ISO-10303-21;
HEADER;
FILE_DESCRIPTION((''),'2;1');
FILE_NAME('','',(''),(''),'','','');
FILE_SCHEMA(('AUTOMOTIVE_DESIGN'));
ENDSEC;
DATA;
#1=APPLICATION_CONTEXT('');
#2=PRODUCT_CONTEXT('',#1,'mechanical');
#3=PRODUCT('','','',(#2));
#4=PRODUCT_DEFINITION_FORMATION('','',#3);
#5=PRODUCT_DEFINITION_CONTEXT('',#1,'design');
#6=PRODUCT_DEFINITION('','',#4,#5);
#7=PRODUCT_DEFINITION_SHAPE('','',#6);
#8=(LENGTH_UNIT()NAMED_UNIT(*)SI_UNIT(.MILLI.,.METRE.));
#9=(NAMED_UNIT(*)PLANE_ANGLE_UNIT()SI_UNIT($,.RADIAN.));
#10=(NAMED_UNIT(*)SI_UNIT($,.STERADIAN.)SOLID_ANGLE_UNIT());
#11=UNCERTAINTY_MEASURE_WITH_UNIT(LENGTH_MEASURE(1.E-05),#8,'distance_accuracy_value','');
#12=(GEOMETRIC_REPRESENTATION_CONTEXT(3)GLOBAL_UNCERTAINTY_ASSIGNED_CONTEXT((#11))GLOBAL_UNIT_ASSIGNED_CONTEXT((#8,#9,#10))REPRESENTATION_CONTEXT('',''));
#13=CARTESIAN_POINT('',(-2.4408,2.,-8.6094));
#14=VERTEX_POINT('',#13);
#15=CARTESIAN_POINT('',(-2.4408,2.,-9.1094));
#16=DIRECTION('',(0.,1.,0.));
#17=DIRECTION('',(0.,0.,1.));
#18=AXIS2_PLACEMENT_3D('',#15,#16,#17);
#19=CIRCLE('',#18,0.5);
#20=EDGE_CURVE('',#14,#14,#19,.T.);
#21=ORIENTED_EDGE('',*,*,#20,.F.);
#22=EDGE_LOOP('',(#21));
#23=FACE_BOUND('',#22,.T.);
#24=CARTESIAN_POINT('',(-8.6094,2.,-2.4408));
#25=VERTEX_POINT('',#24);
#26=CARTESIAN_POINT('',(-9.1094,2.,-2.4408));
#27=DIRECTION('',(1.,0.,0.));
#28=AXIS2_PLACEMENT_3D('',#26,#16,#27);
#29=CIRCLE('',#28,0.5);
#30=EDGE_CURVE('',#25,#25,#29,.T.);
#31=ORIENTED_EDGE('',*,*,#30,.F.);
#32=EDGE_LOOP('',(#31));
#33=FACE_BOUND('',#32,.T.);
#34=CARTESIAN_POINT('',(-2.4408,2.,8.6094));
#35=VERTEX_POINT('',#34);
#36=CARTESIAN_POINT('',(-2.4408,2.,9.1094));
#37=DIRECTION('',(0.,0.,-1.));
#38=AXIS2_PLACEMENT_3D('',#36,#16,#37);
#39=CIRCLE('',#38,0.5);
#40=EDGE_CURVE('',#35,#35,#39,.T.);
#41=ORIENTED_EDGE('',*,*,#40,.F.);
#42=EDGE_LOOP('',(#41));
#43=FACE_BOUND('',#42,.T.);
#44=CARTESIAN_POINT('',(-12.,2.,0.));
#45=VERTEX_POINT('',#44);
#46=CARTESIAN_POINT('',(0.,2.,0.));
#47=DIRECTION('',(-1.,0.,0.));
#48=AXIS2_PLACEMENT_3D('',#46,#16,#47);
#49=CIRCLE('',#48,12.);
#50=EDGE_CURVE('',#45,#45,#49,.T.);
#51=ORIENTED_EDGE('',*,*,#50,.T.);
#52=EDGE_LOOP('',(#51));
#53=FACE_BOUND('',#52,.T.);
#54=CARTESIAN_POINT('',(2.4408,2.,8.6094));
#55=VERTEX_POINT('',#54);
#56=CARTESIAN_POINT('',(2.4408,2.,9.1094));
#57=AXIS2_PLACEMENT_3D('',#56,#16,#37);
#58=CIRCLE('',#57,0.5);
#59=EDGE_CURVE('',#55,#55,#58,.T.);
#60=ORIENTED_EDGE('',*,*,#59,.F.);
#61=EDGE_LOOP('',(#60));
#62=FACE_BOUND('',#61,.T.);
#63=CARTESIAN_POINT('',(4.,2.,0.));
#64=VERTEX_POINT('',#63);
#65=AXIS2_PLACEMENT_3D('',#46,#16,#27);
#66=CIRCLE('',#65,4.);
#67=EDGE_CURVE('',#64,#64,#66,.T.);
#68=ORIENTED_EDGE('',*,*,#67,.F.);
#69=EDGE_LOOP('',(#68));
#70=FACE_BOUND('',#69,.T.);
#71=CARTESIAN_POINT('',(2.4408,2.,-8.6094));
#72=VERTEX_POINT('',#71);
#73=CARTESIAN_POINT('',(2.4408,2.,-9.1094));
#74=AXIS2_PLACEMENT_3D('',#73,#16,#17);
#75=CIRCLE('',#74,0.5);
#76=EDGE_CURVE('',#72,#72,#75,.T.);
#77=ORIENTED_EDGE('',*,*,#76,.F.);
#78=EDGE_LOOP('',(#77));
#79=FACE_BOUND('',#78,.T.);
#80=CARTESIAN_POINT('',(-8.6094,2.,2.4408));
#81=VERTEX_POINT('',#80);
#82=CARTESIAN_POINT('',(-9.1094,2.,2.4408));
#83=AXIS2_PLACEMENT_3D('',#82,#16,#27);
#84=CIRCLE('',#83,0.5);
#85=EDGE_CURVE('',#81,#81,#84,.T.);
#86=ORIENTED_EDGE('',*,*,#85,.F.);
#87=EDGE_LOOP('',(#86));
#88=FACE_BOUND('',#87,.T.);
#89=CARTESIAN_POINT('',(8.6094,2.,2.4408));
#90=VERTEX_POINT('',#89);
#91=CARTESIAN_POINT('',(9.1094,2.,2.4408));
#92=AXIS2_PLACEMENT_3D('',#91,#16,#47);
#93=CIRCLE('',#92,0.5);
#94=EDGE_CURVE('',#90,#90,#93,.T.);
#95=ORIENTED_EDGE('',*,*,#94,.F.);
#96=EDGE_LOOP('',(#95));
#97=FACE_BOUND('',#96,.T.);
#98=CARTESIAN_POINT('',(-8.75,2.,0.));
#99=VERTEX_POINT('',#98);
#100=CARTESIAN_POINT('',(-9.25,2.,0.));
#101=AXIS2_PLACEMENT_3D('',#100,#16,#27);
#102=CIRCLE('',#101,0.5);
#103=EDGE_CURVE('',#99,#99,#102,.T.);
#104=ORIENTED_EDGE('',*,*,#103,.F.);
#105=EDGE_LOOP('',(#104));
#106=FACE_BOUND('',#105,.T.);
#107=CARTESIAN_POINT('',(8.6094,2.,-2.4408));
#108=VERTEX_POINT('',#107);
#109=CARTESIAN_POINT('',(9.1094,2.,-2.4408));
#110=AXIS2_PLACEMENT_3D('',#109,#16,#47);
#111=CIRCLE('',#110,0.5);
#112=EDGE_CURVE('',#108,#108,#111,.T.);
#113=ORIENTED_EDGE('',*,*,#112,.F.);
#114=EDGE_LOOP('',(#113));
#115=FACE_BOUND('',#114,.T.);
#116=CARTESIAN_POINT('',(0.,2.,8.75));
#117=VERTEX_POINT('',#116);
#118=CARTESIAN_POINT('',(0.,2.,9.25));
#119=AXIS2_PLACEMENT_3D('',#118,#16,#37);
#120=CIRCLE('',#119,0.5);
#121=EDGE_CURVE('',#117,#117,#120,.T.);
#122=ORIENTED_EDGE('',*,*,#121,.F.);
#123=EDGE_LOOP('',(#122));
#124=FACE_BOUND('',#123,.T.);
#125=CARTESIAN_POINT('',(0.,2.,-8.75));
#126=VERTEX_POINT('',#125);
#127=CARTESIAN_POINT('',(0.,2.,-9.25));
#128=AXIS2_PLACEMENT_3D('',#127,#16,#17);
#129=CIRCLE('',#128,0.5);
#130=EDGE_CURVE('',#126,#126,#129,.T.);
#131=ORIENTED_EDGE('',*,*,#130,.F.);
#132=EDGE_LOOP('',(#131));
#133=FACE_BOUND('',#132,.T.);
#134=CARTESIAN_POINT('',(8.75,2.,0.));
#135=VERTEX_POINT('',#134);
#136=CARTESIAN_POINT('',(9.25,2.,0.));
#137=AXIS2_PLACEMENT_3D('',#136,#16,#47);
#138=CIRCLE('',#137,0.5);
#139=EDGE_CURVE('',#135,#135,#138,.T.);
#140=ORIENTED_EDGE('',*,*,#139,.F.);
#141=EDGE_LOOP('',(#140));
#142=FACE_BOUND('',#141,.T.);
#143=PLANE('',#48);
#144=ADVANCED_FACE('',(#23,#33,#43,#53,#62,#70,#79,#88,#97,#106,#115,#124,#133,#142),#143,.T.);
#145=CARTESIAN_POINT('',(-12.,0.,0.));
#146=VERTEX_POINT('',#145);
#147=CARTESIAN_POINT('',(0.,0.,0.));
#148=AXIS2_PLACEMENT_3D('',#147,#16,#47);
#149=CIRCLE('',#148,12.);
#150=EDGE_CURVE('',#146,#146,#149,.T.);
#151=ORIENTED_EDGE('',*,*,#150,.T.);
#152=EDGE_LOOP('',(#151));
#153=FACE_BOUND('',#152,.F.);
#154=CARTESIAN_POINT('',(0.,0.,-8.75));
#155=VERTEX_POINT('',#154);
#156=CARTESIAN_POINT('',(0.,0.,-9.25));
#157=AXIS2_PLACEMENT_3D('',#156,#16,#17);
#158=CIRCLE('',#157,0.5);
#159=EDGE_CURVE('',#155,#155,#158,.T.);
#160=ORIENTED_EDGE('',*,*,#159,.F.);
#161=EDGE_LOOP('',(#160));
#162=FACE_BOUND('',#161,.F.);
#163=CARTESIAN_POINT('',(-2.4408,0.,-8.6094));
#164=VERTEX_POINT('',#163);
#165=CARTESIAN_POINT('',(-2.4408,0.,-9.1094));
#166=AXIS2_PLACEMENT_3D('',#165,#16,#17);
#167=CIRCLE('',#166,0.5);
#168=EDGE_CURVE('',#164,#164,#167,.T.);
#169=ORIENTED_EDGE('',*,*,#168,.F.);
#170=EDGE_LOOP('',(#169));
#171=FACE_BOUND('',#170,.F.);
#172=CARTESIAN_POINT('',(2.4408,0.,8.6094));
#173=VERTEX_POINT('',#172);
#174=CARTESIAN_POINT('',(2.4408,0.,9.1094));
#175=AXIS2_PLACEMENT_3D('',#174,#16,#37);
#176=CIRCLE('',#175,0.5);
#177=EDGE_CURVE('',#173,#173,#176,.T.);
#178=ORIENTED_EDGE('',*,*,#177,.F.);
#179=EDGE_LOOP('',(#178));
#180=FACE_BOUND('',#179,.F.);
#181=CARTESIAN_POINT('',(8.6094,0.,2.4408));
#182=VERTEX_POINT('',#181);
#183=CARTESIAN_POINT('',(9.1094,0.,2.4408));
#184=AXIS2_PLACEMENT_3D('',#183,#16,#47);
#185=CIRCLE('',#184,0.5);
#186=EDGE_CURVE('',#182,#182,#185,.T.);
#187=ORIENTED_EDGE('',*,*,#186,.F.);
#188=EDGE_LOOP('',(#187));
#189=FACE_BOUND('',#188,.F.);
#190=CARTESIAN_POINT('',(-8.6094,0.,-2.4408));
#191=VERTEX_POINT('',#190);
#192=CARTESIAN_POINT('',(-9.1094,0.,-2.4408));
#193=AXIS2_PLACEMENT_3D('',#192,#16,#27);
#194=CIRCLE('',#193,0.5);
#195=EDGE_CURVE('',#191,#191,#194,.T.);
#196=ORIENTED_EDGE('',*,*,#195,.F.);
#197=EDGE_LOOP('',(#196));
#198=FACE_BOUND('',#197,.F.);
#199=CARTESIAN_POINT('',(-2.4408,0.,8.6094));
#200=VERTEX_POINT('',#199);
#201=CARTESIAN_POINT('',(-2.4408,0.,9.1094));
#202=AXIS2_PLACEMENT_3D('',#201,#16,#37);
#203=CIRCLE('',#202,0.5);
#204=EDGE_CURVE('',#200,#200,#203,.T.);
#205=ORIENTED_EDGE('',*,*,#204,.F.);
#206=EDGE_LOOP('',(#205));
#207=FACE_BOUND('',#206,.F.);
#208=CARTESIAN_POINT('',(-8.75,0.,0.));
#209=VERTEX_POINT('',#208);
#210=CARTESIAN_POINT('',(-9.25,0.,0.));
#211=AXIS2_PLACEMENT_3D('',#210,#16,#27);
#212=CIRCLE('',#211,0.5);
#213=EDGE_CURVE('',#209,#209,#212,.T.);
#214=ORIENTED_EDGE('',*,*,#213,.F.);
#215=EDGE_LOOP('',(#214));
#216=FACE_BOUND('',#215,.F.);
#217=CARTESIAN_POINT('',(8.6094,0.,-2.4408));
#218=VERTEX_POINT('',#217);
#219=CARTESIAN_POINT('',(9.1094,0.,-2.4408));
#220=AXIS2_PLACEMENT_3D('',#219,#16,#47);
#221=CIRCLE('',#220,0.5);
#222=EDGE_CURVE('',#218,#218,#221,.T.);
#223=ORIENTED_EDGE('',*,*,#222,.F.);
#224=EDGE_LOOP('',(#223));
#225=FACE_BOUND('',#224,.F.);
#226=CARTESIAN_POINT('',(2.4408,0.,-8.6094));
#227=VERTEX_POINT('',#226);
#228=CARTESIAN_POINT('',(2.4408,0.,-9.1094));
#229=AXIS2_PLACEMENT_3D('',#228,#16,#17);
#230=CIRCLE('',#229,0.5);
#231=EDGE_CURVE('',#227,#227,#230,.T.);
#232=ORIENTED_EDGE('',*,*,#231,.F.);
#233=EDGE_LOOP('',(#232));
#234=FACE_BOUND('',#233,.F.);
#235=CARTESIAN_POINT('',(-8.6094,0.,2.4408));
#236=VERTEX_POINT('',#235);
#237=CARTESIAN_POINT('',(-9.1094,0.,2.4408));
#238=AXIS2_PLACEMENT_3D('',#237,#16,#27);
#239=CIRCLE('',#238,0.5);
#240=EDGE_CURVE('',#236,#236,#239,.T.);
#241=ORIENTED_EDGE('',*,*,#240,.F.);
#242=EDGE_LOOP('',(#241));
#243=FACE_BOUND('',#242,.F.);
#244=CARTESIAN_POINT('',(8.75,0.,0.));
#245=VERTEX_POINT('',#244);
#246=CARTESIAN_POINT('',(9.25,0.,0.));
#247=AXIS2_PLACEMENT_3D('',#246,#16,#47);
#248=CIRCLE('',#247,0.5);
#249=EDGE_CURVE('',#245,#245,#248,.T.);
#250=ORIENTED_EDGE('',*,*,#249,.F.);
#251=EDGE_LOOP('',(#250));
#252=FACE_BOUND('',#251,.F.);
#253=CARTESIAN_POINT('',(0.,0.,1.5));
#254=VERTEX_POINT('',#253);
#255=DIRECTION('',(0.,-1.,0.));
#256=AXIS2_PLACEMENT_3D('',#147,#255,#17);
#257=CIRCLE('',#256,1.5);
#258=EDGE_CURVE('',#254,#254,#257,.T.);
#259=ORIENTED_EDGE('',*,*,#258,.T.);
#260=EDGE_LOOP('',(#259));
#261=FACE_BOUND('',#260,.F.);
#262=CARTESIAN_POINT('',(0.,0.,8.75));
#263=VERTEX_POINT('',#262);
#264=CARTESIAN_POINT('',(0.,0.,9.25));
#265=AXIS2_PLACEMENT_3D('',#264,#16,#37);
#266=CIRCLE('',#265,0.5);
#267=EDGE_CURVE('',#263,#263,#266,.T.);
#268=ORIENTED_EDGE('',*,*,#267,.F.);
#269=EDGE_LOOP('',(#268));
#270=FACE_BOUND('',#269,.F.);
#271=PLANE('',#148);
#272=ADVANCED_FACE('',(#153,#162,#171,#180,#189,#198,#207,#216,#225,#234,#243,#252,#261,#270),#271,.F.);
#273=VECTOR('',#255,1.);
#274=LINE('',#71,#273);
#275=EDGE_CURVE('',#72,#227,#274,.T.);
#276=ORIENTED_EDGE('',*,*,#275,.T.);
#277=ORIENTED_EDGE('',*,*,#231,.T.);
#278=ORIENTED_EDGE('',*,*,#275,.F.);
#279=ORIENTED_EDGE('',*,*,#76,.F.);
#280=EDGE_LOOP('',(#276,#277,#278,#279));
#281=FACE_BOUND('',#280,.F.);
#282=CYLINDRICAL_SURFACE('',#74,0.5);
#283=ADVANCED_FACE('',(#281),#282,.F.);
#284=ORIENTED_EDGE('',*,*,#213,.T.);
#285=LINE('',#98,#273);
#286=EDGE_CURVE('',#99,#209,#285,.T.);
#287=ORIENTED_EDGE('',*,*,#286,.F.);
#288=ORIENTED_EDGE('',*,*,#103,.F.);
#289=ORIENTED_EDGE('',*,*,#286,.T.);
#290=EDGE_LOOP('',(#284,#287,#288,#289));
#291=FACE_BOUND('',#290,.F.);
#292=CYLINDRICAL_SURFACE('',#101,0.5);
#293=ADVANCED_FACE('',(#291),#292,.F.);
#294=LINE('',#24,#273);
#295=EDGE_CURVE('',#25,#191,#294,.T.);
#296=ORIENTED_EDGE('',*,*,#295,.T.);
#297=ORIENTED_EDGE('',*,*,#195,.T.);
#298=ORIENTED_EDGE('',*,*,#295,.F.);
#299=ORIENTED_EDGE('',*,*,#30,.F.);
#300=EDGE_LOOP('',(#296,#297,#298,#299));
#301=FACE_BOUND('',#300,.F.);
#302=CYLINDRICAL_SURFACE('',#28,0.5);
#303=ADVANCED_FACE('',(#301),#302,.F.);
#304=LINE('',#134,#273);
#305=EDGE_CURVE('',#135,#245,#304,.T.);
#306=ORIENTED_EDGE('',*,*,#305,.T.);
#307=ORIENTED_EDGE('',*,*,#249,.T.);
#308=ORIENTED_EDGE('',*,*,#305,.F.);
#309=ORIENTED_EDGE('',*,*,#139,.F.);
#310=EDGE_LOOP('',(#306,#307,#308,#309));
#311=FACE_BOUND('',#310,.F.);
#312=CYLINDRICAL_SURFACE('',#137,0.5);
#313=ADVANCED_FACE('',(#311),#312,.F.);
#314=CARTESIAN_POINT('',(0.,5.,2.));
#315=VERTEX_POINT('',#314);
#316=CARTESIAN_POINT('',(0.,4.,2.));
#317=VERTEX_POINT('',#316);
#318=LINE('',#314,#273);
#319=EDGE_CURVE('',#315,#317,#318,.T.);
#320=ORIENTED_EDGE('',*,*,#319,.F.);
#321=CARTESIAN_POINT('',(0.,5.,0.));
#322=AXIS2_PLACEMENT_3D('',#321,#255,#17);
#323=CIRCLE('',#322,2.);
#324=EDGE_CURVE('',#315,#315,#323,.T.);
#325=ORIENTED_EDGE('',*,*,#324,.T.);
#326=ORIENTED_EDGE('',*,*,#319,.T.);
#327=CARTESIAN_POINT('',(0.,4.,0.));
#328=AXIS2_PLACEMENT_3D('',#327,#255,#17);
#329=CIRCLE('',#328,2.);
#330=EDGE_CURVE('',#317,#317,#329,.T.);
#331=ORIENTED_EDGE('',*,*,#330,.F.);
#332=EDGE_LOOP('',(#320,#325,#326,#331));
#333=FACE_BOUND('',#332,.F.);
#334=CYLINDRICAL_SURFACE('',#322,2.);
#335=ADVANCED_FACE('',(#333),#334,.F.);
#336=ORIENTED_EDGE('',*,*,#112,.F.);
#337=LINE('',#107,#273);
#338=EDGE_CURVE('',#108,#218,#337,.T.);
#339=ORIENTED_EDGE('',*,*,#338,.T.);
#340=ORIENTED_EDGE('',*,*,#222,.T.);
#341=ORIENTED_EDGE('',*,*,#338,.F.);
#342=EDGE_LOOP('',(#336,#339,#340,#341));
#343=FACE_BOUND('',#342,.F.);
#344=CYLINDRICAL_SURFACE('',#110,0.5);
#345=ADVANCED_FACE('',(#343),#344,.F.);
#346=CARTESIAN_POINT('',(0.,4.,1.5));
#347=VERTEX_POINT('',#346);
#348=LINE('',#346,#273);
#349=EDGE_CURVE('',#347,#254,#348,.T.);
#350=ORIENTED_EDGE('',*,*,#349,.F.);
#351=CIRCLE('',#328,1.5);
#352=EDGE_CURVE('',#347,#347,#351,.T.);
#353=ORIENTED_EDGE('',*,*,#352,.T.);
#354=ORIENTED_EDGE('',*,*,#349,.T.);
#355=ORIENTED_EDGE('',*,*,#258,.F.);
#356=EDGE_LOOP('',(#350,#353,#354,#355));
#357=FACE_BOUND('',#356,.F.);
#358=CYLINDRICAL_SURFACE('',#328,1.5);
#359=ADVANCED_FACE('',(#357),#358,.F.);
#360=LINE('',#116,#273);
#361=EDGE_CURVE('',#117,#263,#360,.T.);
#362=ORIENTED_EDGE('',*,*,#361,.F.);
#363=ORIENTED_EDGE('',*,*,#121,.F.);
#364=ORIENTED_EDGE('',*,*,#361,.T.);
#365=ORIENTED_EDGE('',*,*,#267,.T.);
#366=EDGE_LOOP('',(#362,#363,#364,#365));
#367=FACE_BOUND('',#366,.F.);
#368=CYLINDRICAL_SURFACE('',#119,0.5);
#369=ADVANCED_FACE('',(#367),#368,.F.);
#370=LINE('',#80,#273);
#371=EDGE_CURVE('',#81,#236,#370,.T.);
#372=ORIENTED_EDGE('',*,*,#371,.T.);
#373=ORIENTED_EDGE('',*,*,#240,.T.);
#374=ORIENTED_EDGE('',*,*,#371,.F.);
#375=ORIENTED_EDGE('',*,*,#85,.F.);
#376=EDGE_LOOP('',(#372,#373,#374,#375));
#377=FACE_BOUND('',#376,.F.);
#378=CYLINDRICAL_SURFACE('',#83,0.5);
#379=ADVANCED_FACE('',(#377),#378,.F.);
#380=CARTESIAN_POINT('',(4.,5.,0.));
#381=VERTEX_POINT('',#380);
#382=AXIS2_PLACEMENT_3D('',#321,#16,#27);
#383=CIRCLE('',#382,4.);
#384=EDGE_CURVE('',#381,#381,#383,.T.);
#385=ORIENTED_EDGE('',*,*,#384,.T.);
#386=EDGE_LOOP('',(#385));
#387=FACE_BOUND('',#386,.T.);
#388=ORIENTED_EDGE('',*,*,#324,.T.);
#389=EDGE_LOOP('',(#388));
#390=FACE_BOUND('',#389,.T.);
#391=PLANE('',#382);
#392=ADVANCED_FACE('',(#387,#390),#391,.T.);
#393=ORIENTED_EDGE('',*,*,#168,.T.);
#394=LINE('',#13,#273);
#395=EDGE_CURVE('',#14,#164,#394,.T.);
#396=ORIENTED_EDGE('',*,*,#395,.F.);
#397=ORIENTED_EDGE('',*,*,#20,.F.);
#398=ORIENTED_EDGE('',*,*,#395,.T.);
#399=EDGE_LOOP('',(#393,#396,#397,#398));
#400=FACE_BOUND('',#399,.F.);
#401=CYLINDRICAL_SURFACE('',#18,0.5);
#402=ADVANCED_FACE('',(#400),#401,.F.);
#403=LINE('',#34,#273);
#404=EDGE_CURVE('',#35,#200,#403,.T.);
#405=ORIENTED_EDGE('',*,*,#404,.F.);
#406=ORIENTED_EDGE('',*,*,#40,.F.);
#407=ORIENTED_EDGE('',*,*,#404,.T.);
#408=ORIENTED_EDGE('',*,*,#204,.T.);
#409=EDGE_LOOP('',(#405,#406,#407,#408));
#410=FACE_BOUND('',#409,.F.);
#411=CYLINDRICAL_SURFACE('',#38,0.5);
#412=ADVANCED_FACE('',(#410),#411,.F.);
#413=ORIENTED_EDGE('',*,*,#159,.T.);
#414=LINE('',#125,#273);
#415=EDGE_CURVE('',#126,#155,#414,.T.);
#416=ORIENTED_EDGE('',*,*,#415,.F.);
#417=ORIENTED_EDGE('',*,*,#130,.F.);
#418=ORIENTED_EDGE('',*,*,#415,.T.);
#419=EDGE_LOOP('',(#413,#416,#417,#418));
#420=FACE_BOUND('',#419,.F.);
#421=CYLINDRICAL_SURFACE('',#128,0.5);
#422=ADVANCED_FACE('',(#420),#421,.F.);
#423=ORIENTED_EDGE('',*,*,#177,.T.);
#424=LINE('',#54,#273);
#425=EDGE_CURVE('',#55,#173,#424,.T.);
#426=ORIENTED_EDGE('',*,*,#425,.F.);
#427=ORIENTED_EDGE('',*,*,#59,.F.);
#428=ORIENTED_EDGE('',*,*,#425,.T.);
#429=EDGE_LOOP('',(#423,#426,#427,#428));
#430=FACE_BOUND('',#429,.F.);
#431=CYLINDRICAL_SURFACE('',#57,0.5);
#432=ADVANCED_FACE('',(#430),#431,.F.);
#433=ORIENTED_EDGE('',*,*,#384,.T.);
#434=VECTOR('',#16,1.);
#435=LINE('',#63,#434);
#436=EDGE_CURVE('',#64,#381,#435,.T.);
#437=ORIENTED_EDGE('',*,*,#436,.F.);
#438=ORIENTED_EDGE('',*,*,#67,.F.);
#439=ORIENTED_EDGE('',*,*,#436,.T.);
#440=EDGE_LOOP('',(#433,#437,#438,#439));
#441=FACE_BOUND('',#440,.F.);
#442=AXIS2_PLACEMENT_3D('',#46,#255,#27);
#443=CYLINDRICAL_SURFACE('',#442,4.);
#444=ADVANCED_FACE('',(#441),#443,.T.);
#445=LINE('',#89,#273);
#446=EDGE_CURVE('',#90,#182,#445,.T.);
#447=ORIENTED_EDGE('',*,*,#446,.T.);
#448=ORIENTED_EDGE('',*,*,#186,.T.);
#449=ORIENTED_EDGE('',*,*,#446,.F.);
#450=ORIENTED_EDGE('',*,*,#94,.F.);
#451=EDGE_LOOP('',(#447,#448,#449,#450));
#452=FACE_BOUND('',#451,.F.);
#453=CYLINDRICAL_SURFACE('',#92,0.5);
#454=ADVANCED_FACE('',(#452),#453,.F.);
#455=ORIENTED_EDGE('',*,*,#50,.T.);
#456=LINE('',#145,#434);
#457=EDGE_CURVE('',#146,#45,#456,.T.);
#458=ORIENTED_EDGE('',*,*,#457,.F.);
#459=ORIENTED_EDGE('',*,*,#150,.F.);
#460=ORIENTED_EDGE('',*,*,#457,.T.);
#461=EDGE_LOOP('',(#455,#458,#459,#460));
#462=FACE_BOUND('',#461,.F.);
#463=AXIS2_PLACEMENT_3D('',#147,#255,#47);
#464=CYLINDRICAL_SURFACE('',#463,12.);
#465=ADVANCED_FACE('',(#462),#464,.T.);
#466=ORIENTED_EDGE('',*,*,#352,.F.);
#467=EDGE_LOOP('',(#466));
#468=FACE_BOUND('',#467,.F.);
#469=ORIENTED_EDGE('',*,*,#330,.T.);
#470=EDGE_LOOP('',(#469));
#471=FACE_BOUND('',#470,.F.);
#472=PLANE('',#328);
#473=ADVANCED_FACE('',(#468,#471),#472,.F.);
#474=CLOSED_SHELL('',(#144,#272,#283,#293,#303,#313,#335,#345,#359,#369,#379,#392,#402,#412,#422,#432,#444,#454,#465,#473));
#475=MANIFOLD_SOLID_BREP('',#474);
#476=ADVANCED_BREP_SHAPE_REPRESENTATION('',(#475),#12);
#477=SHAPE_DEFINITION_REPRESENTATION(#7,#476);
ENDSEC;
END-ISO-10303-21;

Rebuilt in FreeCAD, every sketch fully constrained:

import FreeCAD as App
import Part
import Sketcher
from FreeCAD import Vector

doc = App.newDocument("Part")
body = doc.addObject("PartDesign::Body", "Body")

# Sketch on XZ plane
sketch1 = body.newObject("Sketcher::SketchObject", "Sketch")
sketch1.AttachmentSupport = (doc.getObject("XZ_Plane"), [""])
sketch1.MapMode = "FlatFace"
sketch1.addGeometry(Part.Circle(Vector(0, 0, 0), Vector(0, 0, 1), 12), False)
sketch1.addConstraint([
    Sketcher.Constraint("Coincident", 0, 3, -1, 1),
    Sketcher.Constraint("Diameter", 0, 24.0),
])
pad1 = body.newObject("PartDesign::Pad", "Pad")
pad1.Profile = sketch1
pad1.Length = 2
pad1.Reversed = True

# Sketch on XZ plane
sketch2 = body.newObject("Sketcher::SketchObject", "Sketch001")
sketch2.AttachmentSupport = (doc.getObject("XZ_Plane"), [""])
sketch2.MapMode = "FlatFace"
sketch2.AttachmentOffset = App.Placement(Vector(0, 0, -2), App.Rotation())
sketch2.addGeometry(Part.Circle(Vector(0, 0, 0), Vector(0, 0, 1), 4), False)
sketch2.addConstraint([
    Sketcher.Constraint("Coincident", 0, 3, -1, 1),
    Sketcher.Constraint("Diameter", 0, 8.0),
])
pad2 = body.newObject("PartDesign::Pad", "Pad001")
pad2.Profile = sketch2
pad2.Length = 3
pad2.Reversed = True

# Sketch on XZ plane
sketch3 = body.newObject("Sketcher::SketchObject", "Sketch002")
sketch3.AttachmentSupport = (doc.getObject("XZ_Plane"), [""])
sketch3.MapMode = "FlatFace"
sketch3.AttachmentOffset = App.Placement(Vector(0, 0, -5), App.Rotation())
sketch3.addGeometry(Part.Circle(Vector(0, 0, 0), Vector(0, 0, 1), 1.5), False)
sketch3.addConstraint([
    Sketcher.Constraint("Coincident", 0, 3, -1, 1),
    Sketcher.Constraint("Diameter", 0, 3.0),
])
doc.recompute()
hole = body.newObject("PartDesign::Hole", "Hole")
hole.Profile = sketch3
hole.ThreadType = "None"
hole.Diameter = 3
hole.DepthType = "ThroughAll"
hole.HoleCutType = "Counterbore"
hole.HoleCutDiameter = 4
hole.HoleCutDepth = 1
hole.Reversed = True

# Sketch on XZ plane
sketch4 = body.newObject("Sketcher::SketchObject", "Sketch003")
sketch4.AttachmentSupport = (doc.getObject("XZ_Plane"), [""])
sketch4.MapMode = "FlatFace"
sketch4.AttachmentOffset = App.Placement(Vector(0, 0, -2), App.Rotation())
sketch4.addGeometry([
    Part.Circle(Vector(-9.2, 0, 0), Vector(0, 0, 1), 0.5),
    Part.Circle(Vector(-9.1, -2.4, 0), Vector(0, 0, 1), 0.5),
    Part.Circle(Vector(-9.1, 2.4, 0), Vector(0, 0, 1), 0.5),
], False)
sketch4.addConstraint([
    Sketcher.Constraint("Equal", 0, 1),
    Sketcher.Constraint("Equal", 1, 2),
    Sketcher.Constraint("Symmetric", 1, 3, 2, 3, -1),
    Sketcher.Constraint("PointOnObject", 0, 3, -1),
    Sketcher.Constraint("Diameter", 0, 1.0),
    Sketcher.Constraint("DistanceX", 0, 3, -1, 1, 9.25),
    Sketcher.Constraint("DistanceX", 1, 3, -1, 1, 9.1094),
    Sketcher.Constraint("DistanceY", 1, 3, -1, 1, 2.4408),
])
pocket1 = body.newObject("PartDesign::Pocket", "Pocket")
pocket1.Profile = sketch4
pocket1.Type = "ThroughAll"
pocket1.Reversed = True
doc.recompute()

polarpattern = body.newObject("PartDesign::PolarPattern", "PolarPattern")
polarpattern.Originals = [pocket1]
polarpattern.Axis = (doc.getObject("Y_Axis"), [""])
polarpattern.Angle = 360
polarpattern.Occurrences = 4
body.Tip = polarpattern

doc.recompute()
